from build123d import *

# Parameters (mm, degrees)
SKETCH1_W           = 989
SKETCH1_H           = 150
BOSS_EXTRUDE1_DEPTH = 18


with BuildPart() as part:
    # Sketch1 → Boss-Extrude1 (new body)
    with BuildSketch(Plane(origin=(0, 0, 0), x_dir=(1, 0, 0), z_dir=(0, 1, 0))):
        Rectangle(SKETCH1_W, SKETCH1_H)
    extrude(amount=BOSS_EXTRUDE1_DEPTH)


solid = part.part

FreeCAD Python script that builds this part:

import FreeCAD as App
import Part
import Sketcher
Q = App.Units.Quantity


def add_polygon(sketch, points):
    """Adds a closed chain of lines whose ends are joined by coincident constraints."""
    first, n = sketch.GeometryCount, len(points)
    for a, b in zip(points, points[1:] + points[:1]):
        sketch.addGeometry(Part.LineSegment(App.Vector(*a, 0), App.Vector(*b, 0)), False)
    for i in range(n):
        sketch.addConstraint(Sketcher.Constraint("Coincident", first + i, 2, first + (i + 1) % n, 1))

doc = App.newDocument("Part")
params = doc.addObject("Spreadsheet::Sheet", "Params")
for row, (alias, value) in enumerate([
    ("sketch1_width", "989 mm"),
    ("sketch1_height", "150 mm"),
    ("pad1_length", "18 mm"),
], start=1):
    params.set(f"A{row}", alias)
    params.set(f"B{row}", "=" + value)
    params.setAlias(f"B{row}", alias)

body = doc.addObject("PartDesign::Body", "Body")

sketch1 = doc.addObject("Sketcher::SketchObject", "Sketch")
body.addObject(sketch1)
sketch1.AttachmentSupport = (doc.XZ_Plane, [""])
sketch1.MapMode = "FlatFace"
add_polygon(sketch1, [(-494, -75), (-494, 75), (494, 75), (494, -75)])
sketch1.addConstraint([
    Sketcher.Constraint("Vertical", 0),
    Sketcher.Constraint("Horizontal", 1),
    Sketcher.Constraint("Vertical", 2),
    Sketcher.Constraint("Horizontal", 3),
    Sketcher.Constraint("Symmetric", 0, 2, 2, 2, -1, 1),
    Sketcher.Constraint("DistanceX", 1, 1, 1, 2, Q("989 mm")),
    Sketcher.Constraint("DistanceY", 0, 1, 0, 2, Q("150 mm")),
])
sketch1.setExpression("Constraints[9]", "Params.sketch1_width")
sketch1.setExpression("Constraints[10]", "Params.sketch1_height")
pad1 = doc.addObject("PartDesign::Pad", "Pad")
body.addObject(pad1)
pad1.Profile = sketch1
pad1.setExpression("Length", "Params.pad1_length")
pad1.Reversed = True

doc.recompute()
